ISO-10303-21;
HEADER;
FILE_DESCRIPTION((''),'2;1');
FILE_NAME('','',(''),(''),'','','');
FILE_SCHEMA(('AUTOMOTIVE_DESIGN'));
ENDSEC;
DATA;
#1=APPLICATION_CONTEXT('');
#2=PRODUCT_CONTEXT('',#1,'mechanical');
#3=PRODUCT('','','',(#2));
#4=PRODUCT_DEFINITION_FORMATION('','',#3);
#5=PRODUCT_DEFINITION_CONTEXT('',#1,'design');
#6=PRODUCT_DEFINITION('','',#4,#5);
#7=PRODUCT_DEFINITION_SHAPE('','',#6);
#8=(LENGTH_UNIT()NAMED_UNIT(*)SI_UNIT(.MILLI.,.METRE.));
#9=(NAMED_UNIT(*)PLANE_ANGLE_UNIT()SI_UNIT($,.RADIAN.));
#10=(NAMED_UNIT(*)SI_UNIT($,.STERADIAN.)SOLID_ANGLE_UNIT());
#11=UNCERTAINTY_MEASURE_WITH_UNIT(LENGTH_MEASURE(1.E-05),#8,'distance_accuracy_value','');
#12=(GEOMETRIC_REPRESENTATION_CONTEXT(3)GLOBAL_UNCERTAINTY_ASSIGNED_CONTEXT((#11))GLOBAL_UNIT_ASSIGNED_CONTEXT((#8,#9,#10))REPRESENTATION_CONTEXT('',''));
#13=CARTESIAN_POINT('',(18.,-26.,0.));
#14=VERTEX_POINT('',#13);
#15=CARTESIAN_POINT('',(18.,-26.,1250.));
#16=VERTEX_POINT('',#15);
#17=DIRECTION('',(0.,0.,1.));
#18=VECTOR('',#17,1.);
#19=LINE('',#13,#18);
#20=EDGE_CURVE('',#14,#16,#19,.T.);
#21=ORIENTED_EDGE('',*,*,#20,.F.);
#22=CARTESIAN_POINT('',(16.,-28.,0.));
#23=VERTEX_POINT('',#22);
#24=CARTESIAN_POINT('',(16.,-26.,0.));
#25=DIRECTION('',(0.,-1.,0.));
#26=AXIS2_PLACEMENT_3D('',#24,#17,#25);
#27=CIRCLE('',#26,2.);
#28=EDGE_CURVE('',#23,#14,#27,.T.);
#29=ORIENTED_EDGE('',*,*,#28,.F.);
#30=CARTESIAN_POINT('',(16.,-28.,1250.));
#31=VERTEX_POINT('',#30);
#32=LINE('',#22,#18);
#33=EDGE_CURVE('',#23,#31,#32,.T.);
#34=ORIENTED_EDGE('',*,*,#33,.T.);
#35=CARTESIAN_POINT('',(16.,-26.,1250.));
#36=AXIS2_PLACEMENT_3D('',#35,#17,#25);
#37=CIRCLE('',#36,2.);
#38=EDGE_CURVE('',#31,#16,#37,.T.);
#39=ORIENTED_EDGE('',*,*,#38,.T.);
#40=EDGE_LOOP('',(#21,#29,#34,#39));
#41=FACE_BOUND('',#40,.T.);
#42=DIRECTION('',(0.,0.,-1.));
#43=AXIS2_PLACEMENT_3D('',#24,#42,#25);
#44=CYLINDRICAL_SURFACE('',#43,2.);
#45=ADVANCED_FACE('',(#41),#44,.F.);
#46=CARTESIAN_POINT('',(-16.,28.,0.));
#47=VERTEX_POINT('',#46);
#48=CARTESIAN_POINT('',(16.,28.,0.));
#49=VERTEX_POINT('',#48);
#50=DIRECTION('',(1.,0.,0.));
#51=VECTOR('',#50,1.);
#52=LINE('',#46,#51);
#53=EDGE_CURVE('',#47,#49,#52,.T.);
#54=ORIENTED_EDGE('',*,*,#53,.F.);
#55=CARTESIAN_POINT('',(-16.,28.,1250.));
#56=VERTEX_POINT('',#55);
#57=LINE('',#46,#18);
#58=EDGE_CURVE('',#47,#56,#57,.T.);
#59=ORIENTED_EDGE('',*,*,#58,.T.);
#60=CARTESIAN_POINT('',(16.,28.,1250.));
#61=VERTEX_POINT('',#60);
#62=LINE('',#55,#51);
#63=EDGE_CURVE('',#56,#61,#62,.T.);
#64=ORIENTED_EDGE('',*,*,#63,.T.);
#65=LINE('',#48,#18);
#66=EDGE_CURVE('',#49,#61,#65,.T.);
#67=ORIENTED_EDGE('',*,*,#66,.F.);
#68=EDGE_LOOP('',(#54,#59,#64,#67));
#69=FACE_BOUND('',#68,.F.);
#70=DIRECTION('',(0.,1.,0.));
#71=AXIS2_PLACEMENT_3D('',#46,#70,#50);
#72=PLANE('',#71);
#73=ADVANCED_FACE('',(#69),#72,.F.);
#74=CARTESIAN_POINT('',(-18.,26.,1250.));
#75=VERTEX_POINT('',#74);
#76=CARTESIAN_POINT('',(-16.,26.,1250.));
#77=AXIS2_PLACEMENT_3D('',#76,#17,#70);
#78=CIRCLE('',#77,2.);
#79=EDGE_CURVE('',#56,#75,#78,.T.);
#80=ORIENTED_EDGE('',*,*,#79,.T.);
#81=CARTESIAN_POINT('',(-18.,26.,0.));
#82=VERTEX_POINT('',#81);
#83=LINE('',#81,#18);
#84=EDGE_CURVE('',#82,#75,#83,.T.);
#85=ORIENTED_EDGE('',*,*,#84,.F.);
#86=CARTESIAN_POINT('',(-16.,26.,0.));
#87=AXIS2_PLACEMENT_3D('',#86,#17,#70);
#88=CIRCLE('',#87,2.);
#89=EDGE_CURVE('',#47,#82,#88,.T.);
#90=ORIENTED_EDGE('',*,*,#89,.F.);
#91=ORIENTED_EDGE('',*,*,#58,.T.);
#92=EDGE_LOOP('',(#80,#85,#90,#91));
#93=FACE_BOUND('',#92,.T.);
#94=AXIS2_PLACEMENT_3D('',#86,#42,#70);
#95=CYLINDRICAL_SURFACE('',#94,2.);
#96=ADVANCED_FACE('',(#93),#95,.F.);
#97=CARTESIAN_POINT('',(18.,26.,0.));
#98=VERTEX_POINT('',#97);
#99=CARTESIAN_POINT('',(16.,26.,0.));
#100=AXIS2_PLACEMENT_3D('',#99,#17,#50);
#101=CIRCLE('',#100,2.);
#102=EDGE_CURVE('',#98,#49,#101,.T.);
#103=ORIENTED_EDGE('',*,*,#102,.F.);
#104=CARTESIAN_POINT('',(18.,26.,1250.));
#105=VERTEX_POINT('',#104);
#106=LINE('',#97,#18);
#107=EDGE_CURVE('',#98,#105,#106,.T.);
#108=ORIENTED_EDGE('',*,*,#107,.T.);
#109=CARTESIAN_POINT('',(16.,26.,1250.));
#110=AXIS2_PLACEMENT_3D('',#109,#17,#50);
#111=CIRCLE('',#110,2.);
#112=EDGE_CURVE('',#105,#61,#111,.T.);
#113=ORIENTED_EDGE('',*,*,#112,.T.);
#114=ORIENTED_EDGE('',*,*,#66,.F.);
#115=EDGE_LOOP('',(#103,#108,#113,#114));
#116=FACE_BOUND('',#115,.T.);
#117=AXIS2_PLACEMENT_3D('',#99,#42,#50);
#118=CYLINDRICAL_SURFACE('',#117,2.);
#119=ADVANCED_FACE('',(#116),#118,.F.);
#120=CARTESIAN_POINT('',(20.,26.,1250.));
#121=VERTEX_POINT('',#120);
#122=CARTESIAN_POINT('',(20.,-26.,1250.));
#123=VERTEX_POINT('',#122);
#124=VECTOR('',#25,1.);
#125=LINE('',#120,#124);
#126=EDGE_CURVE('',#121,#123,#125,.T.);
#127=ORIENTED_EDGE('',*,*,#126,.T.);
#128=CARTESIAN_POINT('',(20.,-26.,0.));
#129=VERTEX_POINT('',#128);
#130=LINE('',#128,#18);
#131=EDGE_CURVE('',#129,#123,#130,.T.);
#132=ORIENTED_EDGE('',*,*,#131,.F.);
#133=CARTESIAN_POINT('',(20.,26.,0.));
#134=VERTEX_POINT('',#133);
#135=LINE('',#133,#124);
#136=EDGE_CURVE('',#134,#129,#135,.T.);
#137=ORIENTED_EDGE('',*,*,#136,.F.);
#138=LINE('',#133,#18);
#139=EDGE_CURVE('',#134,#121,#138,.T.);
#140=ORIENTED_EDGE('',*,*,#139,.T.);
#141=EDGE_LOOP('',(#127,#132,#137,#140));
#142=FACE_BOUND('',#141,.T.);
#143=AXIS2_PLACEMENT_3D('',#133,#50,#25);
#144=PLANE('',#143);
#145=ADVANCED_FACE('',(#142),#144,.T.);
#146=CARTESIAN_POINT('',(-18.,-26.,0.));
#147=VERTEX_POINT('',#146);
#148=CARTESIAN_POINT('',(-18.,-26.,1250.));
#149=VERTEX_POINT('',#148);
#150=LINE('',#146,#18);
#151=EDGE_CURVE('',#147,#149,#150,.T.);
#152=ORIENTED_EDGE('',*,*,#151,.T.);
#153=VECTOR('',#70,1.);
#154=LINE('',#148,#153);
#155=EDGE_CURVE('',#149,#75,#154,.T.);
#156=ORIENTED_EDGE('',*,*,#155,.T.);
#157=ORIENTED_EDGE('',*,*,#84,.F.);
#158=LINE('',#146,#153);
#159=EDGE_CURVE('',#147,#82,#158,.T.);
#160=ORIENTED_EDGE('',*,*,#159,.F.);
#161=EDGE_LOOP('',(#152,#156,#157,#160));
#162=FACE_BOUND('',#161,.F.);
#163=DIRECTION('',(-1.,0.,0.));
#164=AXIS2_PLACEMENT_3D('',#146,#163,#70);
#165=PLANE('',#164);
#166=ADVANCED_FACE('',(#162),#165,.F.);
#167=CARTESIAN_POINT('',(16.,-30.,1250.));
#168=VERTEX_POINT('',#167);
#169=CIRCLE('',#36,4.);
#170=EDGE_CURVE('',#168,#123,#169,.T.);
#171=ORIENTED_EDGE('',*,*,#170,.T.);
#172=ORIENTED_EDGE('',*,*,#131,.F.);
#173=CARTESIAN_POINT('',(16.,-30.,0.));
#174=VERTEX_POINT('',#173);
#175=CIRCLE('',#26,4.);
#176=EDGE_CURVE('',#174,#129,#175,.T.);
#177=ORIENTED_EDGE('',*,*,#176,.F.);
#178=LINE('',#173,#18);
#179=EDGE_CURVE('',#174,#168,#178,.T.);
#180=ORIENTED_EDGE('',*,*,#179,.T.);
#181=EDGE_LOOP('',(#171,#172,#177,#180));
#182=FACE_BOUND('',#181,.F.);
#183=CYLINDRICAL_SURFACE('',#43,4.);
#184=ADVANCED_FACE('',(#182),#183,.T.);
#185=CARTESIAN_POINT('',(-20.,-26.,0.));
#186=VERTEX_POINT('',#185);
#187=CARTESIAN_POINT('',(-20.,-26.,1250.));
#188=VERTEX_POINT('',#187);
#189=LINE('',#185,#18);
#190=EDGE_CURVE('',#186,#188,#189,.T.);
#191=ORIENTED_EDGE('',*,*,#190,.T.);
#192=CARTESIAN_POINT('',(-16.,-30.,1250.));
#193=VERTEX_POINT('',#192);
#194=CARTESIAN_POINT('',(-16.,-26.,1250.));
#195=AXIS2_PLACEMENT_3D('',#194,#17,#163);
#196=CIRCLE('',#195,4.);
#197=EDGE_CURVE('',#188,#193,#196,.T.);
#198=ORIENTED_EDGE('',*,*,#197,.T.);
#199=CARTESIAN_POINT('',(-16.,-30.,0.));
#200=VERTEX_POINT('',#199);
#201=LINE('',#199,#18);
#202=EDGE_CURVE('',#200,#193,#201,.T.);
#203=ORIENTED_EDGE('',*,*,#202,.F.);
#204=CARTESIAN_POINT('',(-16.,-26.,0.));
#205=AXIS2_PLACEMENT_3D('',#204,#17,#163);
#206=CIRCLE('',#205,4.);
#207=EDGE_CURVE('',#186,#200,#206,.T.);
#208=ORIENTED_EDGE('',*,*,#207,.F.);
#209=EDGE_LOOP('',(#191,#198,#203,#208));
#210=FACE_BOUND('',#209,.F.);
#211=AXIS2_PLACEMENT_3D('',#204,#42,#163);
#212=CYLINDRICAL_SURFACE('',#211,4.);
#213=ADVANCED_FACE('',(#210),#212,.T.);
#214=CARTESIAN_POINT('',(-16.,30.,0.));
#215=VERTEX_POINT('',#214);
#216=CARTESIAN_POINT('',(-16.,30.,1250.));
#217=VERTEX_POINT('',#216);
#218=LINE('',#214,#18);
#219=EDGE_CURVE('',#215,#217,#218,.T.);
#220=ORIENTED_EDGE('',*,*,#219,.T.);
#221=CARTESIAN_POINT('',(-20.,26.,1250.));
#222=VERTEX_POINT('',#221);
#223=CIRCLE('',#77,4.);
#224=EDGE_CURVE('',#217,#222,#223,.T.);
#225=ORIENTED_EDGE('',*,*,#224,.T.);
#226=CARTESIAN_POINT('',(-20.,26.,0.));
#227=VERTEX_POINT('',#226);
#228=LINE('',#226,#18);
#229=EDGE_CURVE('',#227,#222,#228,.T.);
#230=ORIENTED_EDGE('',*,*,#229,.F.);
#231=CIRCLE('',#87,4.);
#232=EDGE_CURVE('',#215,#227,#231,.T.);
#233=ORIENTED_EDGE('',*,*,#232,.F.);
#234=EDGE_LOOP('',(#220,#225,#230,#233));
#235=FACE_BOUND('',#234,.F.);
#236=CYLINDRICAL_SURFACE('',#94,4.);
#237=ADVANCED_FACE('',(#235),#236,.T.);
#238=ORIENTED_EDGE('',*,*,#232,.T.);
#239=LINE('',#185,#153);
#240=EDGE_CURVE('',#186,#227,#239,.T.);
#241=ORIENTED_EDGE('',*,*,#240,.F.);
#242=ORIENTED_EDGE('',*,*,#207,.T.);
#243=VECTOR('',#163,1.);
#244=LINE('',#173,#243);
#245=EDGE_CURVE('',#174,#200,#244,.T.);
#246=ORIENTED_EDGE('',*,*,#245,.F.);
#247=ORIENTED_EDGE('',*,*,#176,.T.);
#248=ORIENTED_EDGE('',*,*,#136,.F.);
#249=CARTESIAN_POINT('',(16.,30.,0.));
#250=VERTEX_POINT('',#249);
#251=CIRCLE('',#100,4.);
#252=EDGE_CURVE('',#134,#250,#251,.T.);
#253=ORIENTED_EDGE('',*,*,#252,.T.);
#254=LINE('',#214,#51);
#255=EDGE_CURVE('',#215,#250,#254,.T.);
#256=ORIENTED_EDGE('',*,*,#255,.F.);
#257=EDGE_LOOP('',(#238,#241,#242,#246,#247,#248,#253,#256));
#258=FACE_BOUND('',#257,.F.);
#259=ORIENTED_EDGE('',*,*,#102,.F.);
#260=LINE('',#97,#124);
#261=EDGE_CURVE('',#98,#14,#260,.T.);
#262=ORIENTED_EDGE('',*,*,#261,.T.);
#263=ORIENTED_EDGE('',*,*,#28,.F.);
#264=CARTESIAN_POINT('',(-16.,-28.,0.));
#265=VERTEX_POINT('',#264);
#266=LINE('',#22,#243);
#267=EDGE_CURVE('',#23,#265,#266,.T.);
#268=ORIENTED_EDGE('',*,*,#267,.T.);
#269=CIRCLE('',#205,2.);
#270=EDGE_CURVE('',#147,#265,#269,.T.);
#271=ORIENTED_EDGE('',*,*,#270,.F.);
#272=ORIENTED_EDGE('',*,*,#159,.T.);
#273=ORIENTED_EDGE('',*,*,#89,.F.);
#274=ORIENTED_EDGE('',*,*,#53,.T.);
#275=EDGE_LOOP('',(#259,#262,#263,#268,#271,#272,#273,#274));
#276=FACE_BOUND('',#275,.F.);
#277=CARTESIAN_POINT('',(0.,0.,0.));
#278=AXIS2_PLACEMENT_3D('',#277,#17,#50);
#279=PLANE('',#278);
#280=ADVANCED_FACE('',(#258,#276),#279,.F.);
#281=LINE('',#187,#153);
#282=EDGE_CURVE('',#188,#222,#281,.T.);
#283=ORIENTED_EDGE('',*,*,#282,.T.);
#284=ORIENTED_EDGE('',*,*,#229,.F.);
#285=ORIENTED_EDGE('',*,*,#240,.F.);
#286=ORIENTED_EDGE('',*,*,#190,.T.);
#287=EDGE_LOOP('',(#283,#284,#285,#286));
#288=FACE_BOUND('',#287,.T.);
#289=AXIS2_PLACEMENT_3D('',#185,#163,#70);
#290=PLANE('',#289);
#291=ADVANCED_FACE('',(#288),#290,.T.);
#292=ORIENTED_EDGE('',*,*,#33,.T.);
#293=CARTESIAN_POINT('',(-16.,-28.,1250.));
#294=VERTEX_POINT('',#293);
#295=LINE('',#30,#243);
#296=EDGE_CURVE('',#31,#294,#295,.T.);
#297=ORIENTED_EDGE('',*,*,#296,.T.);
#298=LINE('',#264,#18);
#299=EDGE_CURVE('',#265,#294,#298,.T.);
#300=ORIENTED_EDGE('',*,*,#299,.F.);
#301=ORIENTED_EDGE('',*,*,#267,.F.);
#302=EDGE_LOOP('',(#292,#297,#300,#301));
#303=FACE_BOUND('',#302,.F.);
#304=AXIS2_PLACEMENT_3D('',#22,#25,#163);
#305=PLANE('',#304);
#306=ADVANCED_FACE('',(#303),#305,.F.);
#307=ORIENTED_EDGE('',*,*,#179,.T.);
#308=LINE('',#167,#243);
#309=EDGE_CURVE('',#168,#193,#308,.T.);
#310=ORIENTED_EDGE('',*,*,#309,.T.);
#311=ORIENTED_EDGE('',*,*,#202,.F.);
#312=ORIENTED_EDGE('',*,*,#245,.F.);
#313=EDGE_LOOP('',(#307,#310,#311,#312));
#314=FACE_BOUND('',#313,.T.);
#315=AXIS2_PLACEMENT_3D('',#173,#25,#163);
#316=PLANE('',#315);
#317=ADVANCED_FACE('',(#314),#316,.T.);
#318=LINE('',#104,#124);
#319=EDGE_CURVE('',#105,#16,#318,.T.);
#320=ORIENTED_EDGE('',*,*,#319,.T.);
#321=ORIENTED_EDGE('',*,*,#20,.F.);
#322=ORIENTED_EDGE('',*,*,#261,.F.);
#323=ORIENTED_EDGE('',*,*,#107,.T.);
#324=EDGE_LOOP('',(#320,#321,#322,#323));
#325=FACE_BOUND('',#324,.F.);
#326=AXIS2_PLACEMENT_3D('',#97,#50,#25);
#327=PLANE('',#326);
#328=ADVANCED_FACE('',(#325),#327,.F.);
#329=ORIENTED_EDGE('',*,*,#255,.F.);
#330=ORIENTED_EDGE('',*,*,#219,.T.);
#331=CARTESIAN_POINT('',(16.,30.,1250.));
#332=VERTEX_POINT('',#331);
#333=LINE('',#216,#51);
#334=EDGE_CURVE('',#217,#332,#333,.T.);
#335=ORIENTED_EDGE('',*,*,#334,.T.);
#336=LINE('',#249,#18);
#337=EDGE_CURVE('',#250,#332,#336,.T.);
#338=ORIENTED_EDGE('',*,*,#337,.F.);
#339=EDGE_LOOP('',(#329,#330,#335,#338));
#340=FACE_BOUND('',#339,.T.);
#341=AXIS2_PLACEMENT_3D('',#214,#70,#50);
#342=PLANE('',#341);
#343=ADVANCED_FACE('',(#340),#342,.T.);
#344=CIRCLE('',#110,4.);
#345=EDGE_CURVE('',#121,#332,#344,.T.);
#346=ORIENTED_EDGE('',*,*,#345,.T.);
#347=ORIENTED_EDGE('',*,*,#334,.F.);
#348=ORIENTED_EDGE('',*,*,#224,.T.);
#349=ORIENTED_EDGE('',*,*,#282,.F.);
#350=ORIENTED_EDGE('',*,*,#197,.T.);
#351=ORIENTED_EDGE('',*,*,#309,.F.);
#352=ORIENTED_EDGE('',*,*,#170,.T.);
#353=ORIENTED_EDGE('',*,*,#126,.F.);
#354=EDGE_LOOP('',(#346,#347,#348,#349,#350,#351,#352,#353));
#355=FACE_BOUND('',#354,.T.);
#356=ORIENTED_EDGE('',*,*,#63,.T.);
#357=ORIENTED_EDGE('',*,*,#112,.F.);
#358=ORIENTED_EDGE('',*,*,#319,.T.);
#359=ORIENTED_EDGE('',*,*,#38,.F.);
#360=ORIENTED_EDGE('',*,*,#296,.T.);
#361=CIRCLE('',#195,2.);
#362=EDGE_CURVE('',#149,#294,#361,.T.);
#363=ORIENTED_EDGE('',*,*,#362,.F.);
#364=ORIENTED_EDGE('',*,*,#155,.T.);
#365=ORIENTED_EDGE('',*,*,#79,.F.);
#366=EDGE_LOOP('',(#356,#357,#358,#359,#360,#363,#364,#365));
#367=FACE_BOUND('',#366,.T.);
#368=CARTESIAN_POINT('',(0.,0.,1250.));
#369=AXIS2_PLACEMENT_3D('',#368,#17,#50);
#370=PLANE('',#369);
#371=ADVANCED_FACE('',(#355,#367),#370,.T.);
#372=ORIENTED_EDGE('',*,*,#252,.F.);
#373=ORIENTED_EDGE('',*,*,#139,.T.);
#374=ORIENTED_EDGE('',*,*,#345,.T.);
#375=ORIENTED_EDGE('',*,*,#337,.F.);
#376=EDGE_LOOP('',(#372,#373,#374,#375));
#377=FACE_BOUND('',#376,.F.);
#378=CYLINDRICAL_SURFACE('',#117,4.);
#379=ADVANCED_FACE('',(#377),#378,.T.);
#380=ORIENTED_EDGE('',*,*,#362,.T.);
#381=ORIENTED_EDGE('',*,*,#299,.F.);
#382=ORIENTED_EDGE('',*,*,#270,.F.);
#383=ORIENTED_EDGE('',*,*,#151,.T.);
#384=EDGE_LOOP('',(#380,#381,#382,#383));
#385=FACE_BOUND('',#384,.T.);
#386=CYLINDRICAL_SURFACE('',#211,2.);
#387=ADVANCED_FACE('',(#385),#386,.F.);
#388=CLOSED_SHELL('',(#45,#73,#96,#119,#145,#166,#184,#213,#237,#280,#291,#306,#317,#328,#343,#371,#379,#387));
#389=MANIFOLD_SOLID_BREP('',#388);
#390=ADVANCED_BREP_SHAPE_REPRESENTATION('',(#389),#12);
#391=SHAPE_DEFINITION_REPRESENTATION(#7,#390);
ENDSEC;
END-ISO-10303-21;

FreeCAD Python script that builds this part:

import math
import FreeCAD as App
import Part
import Sketcher
from FreeCAD import Vector
Q = App.Units.Quantity

doc = App.newDocument("Part")
params = doc.addObject("Spreadsheet::Sheet", "Params")
for row, (alias, value) in enumerate([
    ("sketch1_radius", "4 mm"),
    ("sketch1_radius2", "2 mm"),
    ("pad1_length", "1250 mm"),
], start=1):
    params.set(f"A{row}", alias)
    params.set(f"B{row}", "=" + value)
    params.setAlias(f"B{row}", alias)

body = doc.addObject("PartDesign::Body", "Body")

# Sketch on XY plane
sketch1 = body.newObject("Sketcher::SketchObject", "Sketch")
sketch1.AttachmentSupport = (doc.getObject("XY_Plane"), [""])
sketch1.MapMode = "FlatFace"
sketch1.addGeometry([
    Part.LineSegment(Vector(-20, 26, 0), Vector(-20, -26, 0)),  # 0
    Part.ArcOfCircle(Part.Circle(Vector(-16, -26, 0), Vector(0, 0, 1), 4), math.radians(180), math.radians(270)),  # 1
    Part.LineSegment(Vector(-16, -30, 0), Vector(16, -30, 0)),  # 2
    Part.ArcOfCircle(Part.Circle(Vector(16, -26, 0), Vector(0, 0, 1), 4), math.radians(-90), math.radians(0)),  # 3
    Part.LineSegment(Vector(20, -26, 0), Vector(20, 26, 0)),  # 4
    Part.ArcOfCircle(Part.Circle(Vector(16, 26, 0), Vector(0, 0, 1), 4), math.radians(0), math.radians(90)),  # 5
    Part.LineSegment(Vector(16, 30, 0), Vector(-16, 30, 0)),  # 6
    Part.ArcOfCircle(Part.Circle(Vector(-16, 26, 0), Vector(0, 0, 1), 4), math.radians(90), math.radians(180)),  # 7
    Part.ArcOfCircle(Part.Circle(Vector(-16, 26, 0), Vector(0, 0, 1), 2), math.radians(90), math.radians(180)),  # 8
    Part.LineSegment(Vector(-16, 28, 0), Vector(16, 28, 0)),  # 9
    Part.ArcOfCircle(Part.Circle(Vector(16, 26, 0), Vector(0, 0, 1), 2), math.radians(0), math.radians(90)),  # 10
    Part.LineSegment(Vector(18, 26, 0), Vector(18, -26, 0)),  # 11
    Part.ArcOfCircle(Part.Circle(Vector(16, -26, 0), Vector(0, 0, 1), 2), math.radians(-90), math.radians(0)),  # 12
    Part.LineSegment(Vector(16, -28, 0), Vector(-16, -28, 0)),  # 13
    Part.ArcOfCircle(Part.Circle(Vector(-16, -26, 0), Vector(0, 0, 1), 2), math.radians(180), math.radians(270)),  # 14
    Part.LineSegment(Vector(-18, -26, 0), Vector(-18, 26, 0)),  # 15
], False)
sketch1.addConstraint([
    Sketcher.Constraint("Tangent", 0, 2, 1, 1),
    Sketcher.Constraint("Tangent", 1, 2, 2, 1),
    Sketcher.Constraint("Tangent", 2, 2, 3, 1),
    Sketcher.Constraint("Tangent", 3, 2, 4, 1),
    Sketcher.Constraint("Tangent", 4, 2, 5, 1),
    Sketcher.Constraint("Tangent", 5, 2, 6, 1),
    Sketcher.Constraint("Tangent", 6, 2, 7, 1),
    Sketcher.Constraint("Tangent", 7, 2, 0, 1),
    Sketcher.Constraint("Tangent", 8, 1, 9, 1),
    Sketcher.Constraint("Tangent", 9, 2, 10, 2),
    Sketcher.Constraint("Tangent", 10, 1, 11, 1),
    Sketcher.Constraint("Tangent", 11, 2, 12, 2),
    Sketcher.Constraint("Tangent", 12, 1, 13, 1),
    Sketcher.Constraint("Tangent", 13, 2, 14, 2),
    Sketcher.Constraint("Tangent", 14, 1, 15, 1),
    Sketcher.Constraint("Tangent", 15, 2, 8, 2),
    Sketcher.Constraint("Vertical", 0),
    Sketcher.Constraint("Horizontal", 2),
    Sketcher.Constraint("Vertical", 4),
    Sketcher.Constraint("Horizontal", 6),
    Sketcher.Constraint("Horizontal", 9),
    Sketcher.Constraint("Vertical", 11),
    Sketcher.Constraint("Horizontal", 13),
    Sketcher.Constraint("Vertical", 15),
    Sketcher.Constraint("Coincident", 8, 3, 7, 3),
    Sketcher.Constraint("Coincident", 10, 3, 5, 3),
    Sketcher.Constraint("Coincident", 12, 3, 3, 3),
    Sketcher.Constraint("Equal", 1, 3),
    Sketcher.Constraint("Equal", 3, 5),
    Sketcher.Constraint("Equal", 5, 7),
    Sketcher.Constraint("Equal", 12, 14),
    Sketcher.Constraint("Symmetric", 1, 3, 5, 3, -1, 1),
    Sketcher.Constraint("Radius", 1, Q("4 mm")),
    Sketcher.Constraint("Radius", 8, Q("2 mm")),
    Sketcher.Constraint("DistanceX", 0, 2, -1, 1, Q("20 mm")),
    Sketcher.Constraint("DistanceY", 1, 2, -1, 1, Q("30 mm")),
])
sketch1.setExpression("Constraints[32]", "Params.sketch1_radius")
sketch1.setExpression("Constraints[33]", "Params.sketch1_radius2")
pad1 = body.newObject("PartDesign::Pad", "Pad")
pad1.Profile = sketch1
pad1.setExpression("Length", "Params.pad1_length")

doc.recompute()
